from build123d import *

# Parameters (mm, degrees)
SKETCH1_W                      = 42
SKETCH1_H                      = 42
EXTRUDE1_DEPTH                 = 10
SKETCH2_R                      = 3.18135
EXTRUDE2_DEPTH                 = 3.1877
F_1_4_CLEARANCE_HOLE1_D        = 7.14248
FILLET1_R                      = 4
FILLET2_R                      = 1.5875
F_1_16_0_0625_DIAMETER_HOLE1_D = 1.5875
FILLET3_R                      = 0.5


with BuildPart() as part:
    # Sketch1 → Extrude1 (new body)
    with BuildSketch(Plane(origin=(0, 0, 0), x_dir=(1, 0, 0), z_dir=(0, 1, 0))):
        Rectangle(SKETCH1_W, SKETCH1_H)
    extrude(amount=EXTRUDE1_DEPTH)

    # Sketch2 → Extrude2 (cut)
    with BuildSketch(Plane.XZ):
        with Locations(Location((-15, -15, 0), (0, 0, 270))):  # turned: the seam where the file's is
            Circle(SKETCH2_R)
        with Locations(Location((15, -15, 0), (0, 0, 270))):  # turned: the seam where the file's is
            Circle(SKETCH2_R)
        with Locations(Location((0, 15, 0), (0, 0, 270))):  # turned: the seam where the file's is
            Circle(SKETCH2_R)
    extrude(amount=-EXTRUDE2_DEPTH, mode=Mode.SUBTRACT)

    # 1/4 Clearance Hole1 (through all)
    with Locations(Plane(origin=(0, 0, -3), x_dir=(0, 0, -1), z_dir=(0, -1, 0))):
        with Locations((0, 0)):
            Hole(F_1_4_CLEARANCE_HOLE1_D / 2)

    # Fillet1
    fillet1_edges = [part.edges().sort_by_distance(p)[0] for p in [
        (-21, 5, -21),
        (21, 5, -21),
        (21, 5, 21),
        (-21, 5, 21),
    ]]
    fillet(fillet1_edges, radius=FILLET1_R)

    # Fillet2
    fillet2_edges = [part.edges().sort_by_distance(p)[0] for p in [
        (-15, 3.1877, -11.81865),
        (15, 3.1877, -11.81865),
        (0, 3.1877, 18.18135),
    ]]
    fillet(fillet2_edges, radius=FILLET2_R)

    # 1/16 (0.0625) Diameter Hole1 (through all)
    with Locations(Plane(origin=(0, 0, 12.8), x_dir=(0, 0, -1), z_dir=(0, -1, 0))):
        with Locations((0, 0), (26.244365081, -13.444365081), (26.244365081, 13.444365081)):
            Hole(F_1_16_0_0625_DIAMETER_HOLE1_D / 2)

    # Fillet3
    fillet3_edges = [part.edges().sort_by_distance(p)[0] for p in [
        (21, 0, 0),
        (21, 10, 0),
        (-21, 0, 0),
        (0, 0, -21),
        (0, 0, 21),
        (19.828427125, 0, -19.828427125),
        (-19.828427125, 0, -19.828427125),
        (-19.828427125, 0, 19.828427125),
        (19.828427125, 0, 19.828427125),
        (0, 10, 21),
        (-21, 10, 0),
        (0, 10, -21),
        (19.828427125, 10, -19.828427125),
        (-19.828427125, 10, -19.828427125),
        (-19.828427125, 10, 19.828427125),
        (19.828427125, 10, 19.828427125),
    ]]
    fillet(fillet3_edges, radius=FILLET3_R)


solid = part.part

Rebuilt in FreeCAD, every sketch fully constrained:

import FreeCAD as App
import Part
import Sketcher
from FreeCAD import Vector


def edges_at(feature, points):
    """Names of the edges that pass closest to the given points."""
    edges = feature.Shape.Edges
    near = lambda p: min(range(len(edges)), key=lambda i: edges[i].distToShape(Part.Vertex(*p))[0])
    return sorted({f"Edge{near(p) + 1}" for p in points})


def add_polygon(sketch, points):
    """Adds a closed chain of lines whose ends are joined by coincident constraints."""
    first, n = sketch.GeometryCount, len(points)
    for a, b in zip(points, points[1:] + points[:1]):
        sketch.addGeometry(Part.LineSegment(App.Vector(*a, 0), App.Vector(*b, 0)), False)
    for i in range(n):
        sketch.addConstraint(Sketcher.Constraint("Coincident", first + i, 2, first + (i + 1) % n, 1))

doc = App.newDocument("Part")
body = doc.addObject("PartDesign::Body", "Body")

# Sketch on XZ plane
sketch1 = body.newObject("Sketcher::SketchObject", "Sketch")
sketch1.AttachmentSupport = (doc.getObject("XZ_Plane"), [""])
sketch1.MapMode = "FlatFace"
add_polygon(sketch1, [(-21, -21), (-21, 21), (21, 21), (21, -21)])  # lines 0-3
sketch1.addConstraint([
    Sketcher.Constraint("Vertical", 0),
    Sketcher.Constraint("Horizontal", 1),
    Sketcher.Constraint("Vertical", 2),
    Sketcher.Constraint("Horizontal", 3),
    Sketcher.Constraint("Symmetric", 0, 2, 2, 2, -1, 1),
    Sketcher.Constraint("Equal", 3, 0),
    Sketcher.Constraint("DistanceX", 1, 1, 1, 2, 42.0),
])
pad1 = body.newObject("PartDesign::Pad", "Pad")
pad1.Profile = sketch1
pad1.Length = 10
pad1.Reversed = True

# Sketch on XZ plane
sketch2 = body.newObject("Sketcher::SketchObject", "Sketch001")
sketch2.AttachmentSupport = (doc.getObject("XZ_Plane"), [""])
sketch2.MapMode = "FlatFace"
sketch2.addGeometry([
    Part.Circle(Vector(-15, -15, 0), Vector(0, 0, 1), 3.2),
    Part.Circle(Vector(15, -15, 0), Vector(0, 0, 1), 3.2),
    Part.Circle(Vector(0, 15, 0), Vector(0, 0, 1), 3.2),
], False)
sketch2.addConstraint([
    Sketcher.Constraint("Equal", 0, 1),
    Sketcher.Constraint("Equal", 1, 2),
    Sketcher.Constraint("Symmetric", 0, 3, 1, 3, -2),
    Sketcher.Constraint("PointOnObject", 2, 3, -2),
    Sketcher.Constraint("DistanceX", 0, 3, -1, 1, 15.0),
    Sketcher.Constraint("DistanceY", 0, 3, -1, 1, 15.0),
    Sketcher.Constraint("DistanceY", -1, 1, 2, 3, 15.0),
    Sketcher.Constraint("Diameter", 0, 6.3627),
])
pocket1 = body.newObject("PartDesign::Pocket", "Pocket")
pocket1.Profile = sketch2
pocket1.Length = 3.1877

# Sketch on XZ plane
sketch3 = body.newObject("Sketcher::SketchObject", "Sketch002")
sketch3.AttachmentSupport = (doc.getObject("XZ_Plane"), [""])
sketch3.MapMode = "FlatFace"
sketch3.addGeometry(Part.Circle(Vector(0, -3, 0), Vector(0, 0, 1), 3.6), False)
sketch3.addConstraint([
    Sketcher.Constraint("PointOnObject", 0, 3, -2),
    Sketcher.Constraint("DistanceY", 0, 3, -1, 1, 3.0),
    Sketcher.Constraint("Diameter", 0, 7.14248),
])
doc.recompute()
hole = body.newObject("PartDesign::Hole", "Hole")
hole.Profile = sketch3
hole.ThreadType = "None"
hole.Diameter = 7.14248
hole.DepthType = "ThroughAll"
doc.recompute()

fillet = body.newObject("PartDesign::Fillet", "Fillet")
fillet.Base = (hole, edges_at(hole, [
    (-21, 5, -21),
    (21, 5, -21),
    (21, 5, 21),
    (-21, 5, 21),
]))
fillet.Radius = 4
doc.recompute()

fillet2 = body.newObject("PartDesign::Fillet", "Fillet001")
fillet2.Base = (fillet, edges_at(fillet, [(-15, 3.188, -11.819), (15, 3.188, -11.819), (0, 3.188, 18.181)]))
fillet2.Radius = 1.5875

# Sketch on XZ plane
sketch4 = body.newObject("Sketcher::SketchObject", "Sketch003")
sketch4.AttachmentSupport = (doc.getObject("XZ_Plane"), [""])
sketch4.MapMode = "FlatFace"
sketch4.addGeometry([
    Part.Circle(Vector(0, 12.8, 0), Vector(0, 0, 1), 0.8),
    Part.Circle(Vector(-13.4, -13.4, 0), Vector(0, 0, 1), 0.8),
    Part.Circle(Vector(13.4, -13.4, 0), Vector(0, 0, 1), 0.8),
], False)
sketch4.addConstraint([
    Sketcher.Constraint("Equal", 0, 1),
    Sketcher.Constraint("Equal", 1, 2),
    Sketcher.Constraint("Symmetric", 1, 3, 2, 3, -2),
    Sketcher.Constraint("PointOnObject", 0, 3, -2),
    Sketcher.Constraint("Diameter", 0, 1.5875),
    Sketcher.Constraint("DistanceY", -1, 1, 0, 3, 12.8),
    Sketcher.Constraint("DistanceX", 1, 3, 2, 3, 26.88873),
    Sketcher.Constraint("DistanceY", 1, 3, -1, 1, 13.444365),
])
doc.recompute()
hole2 = body.newObject("PartDesign::Hole", "Hole001")
hole2.Profile = sketch4
hole2.ThreadType = "None"
hole2.Diameter = 1.5875
hole2.DepthType = "ThroughAll"
doc.recompute()

fillet3 = body.newObject("PartDesign::Fillet", "Fillet002")
fillet3.Base = (hole2, edges_at(hole2, [
    (21, 0, 0),
    (21, 10, 0),
    (-21, 0, 0),
    (0, 0, -21),
    (0, 0, 21),
    (19.828, 0, -19.828),
    (-19.828, 0, -19.828),
    (-19.828, 0, 19.828),
    (19.828, 0, 19.828),
    (0, 10, 21),
    (-21, 10, 0),
    (0, 10, -21),
    (19.828, 10, -19.828),
    (-19.828, 10, -19.828),
    (-19.828, 10, 19.828),
    (19.828, 10, 19.828),
]))
fillet3.Radius = 0.5

doc.recompute()
